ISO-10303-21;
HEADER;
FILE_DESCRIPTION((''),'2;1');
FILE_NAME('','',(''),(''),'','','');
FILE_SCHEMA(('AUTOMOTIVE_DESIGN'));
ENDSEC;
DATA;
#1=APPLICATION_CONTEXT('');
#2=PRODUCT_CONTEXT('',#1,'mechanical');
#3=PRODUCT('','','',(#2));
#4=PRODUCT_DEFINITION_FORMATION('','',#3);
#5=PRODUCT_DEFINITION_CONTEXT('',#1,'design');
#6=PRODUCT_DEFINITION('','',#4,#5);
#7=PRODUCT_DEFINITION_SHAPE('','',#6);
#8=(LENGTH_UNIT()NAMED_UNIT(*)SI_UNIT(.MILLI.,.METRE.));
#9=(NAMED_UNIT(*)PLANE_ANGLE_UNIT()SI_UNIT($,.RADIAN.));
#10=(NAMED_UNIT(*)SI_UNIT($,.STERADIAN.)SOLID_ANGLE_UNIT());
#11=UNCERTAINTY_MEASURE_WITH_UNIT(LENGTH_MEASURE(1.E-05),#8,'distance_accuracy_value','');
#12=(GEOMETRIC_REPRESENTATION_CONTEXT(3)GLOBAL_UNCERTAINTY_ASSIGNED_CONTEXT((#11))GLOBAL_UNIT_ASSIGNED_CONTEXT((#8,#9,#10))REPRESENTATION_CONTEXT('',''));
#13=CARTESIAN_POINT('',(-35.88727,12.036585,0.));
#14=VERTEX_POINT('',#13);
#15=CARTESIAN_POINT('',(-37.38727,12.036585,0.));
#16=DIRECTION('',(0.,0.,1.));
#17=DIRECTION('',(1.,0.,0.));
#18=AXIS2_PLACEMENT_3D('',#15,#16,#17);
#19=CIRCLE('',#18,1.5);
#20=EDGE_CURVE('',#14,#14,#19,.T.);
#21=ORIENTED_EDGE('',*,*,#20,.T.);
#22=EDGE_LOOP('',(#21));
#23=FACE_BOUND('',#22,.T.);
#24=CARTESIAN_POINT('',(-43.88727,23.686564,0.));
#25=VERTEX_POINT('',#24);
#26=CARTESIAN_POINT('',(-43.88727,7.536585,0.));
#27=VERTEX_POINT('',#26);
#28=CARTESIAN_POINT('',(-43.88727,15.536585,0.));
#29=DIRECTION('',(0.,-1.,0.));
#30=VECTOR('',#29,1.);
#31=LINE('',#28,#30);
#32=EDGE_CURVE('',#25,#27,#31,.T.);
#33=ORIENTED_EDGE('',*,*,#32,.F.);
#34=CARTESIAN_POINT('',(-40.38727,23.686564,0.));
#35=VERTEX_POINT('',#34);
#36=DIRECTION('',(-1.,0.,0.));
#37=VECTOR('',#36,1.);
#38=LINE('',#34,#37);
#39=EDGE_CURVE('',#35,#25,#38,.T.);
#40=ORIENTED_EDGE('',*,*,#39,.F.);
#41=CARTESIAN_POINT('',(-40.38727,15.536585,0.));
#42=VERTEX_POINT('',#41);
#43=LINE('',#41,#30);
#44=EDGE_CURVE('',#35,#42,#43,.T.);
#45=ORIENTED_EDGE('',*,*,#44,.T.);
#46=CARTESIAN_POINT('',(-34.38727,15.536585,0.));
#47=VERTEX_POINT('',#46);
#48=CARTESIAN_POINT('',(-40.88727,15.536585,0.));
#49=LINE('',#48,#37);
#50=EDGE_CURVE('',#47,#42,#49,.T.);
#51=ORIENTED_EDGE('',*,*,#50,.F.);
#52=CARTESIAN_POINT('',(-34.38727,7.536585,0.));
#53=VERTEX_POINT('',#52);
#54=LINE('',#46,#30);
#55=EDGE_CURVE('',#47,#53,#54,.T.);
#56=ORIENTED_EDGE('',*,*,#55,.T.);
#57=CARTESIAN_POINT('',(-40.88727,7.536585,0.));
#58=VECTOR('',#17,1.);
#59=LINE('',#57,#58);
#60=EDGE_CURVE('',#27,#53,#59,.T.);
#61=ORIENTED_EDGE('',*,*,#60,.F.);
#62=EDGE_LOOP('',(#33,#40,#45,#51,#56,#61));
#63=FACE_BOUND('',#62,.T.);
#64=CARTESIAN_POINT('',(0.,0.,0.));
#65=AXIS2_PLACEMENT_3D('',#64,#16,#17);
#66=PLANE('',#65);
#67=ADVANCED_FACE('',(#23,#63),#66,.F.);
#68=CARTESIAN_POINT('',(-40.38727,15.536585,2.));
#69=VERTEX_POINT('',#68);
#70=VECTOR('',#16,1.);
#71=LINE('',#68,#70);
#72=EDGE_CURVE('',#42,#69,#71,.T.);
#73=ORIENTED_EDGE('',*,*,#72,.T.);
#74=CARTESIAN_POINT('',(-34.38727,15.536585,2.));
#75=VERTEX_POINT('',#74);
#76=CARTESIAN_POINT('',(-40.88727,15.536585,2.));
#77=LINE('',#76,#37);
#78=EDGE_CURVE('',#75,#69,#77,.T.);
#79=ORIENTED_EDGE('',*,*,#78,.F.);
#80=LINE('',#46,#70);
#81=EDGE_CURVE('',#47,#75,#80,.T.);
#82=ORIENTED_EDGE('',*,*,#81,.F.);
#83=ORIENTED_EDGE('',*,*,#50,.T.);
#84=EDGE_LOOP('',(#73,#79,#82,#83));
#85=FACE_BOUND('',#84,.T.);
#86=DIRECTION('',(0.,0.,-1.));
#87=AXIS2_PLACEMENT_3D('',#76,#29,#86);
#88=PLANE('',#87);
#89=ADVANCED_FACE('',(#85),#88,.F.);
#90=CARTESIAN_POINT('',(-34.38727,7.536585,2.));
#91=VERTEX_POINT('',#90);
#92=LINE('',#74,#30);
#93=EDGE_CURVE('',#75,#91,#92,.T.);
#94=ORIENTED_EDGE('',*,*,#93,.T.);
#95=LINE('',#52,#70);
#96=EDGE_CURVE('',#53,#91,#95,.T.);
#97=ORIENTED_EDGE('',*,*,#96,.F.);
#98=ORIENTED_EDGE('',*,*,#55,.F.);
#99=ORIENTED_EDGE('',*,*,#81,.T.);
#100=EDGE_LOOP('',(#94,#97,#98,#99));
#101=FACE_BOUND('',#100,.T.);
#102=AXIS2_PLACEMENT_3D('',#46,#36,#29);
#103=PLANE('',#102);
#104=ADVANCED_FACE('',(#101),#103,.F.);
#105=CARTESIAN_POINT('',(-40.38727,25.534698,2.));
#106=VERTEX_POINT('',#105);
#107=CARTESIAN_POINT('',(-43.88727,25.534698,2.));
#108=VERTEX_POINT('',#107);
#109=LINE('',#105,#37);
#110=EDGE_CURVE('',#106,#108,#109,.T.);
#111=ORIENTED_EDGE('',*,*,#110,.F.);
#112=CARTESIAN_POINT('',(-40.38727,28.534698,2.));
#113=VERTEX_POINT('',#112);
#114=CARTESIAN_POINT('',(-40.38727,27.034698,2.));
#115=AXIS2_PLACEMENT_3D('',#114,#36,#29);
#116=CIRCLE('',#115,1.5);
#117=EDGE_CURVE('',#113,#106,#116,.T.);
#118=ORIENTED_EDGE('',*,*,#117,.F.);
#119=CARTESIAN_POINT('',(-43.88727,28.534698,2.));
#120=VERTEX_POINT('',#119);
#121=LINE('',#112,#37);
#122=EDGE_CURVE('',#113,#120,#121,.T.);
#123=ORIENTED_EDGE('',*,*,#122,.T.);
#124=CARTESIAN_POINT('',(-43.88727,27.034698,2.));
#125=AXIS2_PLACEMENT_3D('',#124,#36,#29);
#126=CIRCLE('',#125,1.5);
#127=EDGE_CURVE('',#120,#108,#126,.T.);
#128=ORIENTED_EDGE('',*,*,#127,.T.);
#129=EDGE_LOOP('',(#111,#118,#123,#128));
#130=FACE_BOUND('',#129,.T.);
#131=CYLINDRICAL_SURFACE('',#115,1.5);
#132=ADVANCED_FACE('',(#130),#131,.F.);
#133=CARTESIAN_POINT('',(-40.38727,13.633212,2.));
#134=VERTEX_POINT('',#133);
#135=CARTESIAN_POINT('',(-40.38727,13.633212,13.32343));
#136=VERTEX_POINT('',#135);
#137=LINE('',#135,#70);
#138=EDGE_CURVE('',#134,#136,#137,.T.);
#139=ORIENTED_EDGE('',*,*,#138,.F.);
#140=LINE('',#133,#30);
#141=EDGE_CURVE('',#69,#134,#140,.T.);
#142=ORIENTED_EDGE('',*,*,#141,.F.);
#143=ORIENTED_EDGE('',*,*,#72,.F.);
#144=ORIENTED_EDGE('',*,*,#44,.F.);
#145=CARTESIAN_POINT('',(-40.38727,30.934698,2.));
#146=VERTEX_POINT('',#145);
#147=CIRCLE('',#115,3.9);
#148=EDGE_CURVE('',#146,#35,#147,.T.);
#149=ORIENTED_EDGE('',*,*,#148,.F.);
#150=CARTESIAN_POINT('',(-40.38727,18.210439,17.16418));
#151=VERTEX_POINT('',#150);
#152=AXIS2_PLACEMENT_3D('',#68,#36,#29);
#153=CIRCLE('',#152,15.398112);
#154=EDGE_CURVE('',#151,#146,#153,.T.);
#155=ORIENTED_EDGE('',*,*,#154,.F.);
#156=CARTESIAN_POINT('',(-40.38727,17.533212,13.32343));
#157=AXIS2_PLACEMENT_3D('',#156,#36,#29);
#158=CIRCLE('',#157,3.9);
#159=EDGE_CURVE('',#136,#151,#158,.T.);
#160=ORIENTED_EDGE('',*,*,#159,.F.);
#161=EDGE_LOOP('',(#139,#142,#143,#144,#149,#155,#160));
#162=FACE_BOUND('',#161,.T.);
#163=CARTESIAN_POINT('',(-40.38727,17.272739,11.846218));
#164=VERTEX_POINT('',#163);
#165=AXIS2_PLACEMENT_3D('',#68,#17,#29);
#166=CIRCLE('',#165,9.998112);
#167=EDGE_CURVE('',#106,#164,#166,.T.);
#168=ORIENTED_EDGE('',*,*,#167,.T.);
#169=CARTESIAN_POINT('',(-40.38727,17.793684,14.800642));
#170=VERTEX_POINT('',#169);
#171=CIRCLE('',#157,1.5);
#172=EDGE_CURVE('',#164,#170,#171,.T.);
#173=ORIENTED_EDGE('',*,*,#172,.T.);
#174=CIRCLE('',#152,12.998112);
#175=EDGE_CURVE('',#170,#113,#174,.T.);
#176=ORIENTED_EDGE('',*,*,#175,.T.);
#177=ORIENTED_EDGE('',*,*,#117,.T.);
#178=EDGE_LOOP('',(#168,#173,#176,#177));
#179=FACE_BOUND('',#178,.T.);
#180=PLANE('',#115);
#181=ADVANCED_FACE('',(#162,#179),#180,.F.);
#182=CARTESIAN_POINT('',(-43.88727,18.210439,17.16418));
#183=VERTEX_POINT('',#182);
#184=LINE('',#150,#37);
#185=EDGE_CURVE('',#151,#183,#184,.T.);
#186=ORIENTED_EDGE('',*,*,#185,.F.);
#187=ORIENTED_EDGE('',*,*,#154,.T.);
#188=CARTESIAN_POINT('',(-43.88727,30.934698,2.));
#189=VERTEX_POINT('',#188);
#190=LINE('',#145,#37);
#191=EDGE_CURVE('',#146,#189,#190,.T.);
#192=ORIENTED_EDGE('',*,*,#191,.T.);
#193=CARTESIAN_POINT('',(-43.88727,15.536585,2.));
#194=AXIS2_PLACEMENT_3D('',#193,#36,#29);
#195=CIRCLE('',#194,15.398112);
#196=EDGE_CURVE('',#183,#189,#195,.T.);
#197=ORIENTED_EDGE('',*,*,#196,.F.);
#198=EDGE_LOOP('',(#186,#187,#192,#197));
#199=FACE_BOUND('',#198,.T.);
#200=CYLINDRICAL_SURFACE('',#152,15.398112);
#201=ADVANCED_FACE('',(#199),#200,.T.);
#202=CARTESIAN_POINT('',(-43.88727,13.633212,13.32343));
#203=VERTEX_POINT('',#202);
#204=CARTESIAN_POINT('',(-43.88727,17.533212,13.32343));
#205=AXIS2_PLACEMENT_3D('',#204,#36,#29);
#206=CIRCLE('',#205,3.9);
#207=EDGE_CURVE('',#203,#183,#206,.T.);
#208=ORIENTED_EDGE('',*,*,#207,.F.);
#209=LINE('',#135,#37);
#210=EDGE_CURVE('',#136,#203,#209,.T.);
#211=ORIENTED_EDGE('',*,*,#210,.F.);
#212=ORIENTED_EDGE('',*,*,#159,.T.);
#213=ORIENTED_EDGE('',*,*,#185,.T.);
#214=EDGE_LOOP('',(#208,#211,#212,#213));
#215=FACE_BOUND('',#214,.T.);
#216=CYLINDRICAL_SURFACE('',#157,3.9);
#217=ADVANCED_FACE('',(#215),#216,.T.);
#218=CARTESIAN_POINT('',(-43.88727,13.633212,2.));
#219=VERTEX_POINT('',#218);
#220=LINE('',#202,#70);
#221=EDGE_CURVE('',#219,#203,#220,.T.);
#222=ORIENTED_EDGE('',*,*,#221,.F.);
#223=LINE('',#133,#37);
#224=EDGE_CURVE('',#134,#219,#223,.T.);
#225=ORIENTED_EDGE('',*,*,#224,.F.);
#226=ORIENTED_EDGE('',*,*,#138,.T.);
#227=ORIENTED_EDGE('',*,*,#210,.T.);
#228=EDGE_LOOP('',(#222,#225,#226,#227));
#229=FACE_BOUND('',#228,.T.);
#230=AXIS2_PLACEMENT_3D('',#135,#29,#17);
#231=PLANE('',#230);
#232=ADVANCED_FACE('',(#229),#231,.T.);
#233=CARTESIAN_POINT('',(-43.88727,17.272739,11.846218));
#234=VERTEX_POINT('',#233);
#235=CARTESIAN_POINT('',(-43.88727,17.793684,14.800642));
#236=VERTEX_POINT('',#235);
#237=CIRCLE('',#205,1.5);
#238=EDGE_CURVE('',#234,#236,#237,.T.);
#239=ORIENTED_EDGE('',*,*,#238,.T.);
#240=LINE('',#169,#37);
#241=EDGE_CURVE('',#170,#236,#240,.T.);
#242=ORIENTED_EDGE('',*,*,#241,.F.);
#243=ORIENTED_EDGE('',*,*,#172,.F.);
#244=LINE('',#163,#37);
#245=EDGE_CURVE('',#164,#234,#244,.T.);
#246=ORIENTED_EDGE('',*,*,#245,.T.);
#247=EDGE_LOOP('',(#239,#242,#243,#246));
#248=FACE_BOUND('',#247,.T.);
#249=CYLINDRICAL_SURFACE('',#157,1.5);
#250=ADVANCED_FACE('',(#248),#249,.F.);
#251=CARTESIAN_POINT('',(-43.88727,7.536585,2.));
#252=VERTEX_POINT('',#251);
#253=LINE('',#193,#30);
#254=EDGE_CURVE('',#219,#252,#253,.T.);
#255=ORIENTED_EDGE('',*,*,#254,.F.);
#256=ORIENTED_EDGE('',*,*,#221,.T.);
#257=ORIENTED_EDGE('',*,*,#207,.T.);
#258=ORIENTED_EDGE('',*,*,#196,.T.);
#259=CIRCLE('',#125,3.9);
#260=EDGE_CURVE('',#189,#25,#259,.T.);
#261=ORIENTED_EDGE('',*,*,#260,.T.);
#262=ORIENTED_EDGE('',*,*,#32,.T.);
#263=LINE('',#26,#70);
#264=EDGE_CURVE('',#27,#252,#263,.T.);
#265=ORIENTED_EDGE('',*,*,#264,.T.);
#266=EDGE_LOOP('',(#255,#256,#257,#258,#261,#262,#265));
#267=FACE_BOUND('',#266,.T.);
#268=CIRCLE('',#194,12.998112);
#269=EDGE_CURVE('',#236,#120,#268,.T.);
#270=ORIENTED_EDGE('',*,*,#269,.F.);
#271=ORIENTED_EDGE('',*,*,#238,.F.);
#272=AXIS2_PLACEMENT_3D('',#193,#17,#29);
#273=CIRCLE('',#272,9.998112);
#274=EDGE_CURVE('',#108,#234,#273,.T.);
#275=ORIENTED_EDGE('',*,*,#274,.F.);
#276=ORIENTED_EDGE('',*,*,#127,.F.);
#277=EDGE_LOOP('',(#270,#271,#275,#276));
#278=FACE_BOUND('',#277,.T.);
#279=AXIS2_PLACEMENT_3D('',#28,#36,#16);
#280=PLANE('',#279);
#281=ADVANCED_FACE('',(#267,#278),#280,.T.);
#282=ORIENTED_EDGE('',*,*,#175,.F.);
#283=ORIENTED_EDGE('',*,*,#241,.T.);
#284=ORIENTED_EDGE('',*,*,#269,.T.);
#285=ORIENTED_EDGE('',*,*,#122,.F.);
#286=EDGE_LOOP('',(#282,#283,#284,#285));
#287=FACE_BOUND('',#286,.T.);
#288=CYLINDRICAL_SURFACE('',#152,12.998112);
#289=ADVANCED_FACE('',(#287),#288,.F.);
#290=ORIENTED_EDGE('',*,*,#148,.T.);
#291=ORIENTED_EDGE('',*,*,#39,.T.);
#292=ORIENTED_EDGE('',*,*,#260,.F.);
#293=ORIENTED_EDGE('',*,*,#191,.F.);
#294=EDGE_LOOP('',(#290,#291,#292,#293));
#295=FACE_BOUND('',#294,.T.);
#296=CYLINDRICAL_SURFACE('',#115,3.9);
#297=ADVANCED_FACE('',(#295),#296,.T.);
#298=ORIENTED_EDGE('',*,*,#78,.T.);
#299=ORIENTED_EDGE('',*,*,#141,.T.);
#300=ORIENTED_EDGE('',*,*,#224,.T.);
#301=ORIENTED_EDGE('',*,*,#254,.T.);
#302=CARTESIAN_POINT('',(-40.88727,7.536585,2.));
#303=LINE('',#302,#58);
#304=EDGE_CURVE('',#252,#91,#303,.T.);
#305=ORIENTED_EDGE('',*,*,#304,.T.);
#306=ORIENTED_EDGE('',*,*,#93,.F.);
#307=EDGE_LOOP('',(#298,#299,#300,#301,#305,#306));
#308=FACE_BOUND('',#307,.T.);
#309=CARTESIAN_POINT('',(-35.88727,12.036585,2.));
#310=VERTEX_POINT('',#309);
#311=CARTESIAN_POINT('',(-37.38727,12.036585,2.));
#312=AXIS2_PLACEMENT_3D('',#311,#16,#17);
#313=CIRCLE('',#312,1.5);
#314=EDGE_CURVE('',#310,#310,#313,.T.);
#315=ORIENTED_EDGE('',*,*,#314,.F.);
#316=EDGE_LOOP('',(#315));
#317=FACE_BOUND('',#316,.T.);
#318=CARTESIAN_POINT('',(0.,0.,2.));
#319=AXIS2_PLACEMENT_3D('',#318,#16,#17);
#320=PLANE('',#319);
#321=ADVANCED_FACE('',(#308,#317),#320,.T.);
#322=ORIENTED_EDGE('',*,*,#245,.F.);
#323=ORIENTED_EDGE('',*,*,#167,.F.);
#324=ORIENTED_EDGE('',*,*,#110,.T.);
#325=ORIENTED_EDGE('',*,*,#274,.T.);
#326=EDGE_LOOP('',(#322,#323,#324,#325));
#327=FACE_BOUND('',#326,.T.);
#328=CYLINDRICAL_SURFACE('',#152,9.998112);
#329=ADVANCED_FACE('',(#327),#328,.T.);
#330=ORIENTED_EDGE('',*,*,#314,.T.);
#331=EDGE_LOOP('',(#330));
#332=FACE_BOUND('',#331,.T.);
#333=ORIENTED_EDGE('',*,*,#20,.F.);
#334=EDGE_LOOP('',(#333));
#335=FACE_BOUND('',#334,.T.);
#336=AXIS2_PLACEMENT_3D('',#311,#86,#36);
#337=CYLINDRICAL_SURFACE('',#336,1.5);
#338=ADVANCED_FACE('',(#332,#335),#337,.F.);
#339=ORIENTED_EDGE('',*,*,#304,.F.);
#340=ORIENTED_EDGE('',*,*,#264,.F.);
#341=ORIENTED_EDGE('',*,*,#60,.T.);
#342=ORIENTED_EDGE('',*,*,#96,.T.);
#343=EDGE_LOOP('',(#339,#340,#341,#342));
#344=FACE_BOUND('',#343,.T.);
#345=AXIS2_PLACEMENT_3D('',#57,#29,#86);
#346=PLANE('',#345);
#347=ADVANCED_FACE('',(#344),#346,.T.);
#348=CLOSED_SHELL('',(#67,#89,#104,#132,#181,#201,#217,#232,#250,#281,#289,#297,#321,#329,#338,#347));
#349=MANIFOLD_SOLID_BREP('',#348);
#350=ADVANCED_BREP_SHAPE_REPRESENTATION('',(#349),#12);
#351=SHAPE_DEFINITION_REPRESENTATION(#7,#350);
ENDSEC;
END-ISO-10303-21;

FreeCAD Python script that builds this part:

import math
import FreeCAD as App
import Part
import Sketcher

V = App.Vector

doc = App.newDocument("Part")
body = doc.addObject("PartDesign::Body", "Body")

sketch1 = doc.addObject("Sketcher::SketchObject", "Sketch")
body.addObject(sketch1)
sketch1.AttachmentSupport = (doc.XY_Plane, [""])
sketch1.MapMode = "FlatFace"
sketch1.addGeometry(Part.LineSegment(V(-40.9, 15.5, 0), V(-40.9, -12.5, 0)), False)
sketch1.addGeometry(Part.LineSegment(V(-40.9, -12.5, 0), V(-14.9, -12.5, 0)), False)
sketch1.addGeometry(Part.LineSegment(V(-14.9, -12.5, 0), V(-14.9, 15.5, 0)), False)
sketch1.addGeometry(Part.LineSegment(V(-14.9, 15.5, 0), V(-40.9, 15.5, 0)), False)
sketch1.addGeometry(Part.Circle(V(-27.9, -5.5, 0), V(0, 0, 1), 1.5), False)
sketch1.addGeometry(Part.Circle(V(-37.4, 12, 0), V(0, 0, 1), 1.5), False)
sketch1.addGeometry(Part.Circle(V(-18.4, 12, 0), V(0, 0, 1), 1.5), False)
sketch1.addConstraint(Sketcher.Constraint("Coincident", 0, 2, 1, 1))
sketch1.addConstraint(Sketcher.Constraint("Coincident", 1, 2, 2, 1))
sketch1.addConstraint(Sketcher.Constraint("Coincident", 2, 2, 3, 1))
sketch1.addConstraint(Sketcher.Constraint("Coincident", 3, 2, 0, 1))
sketch1.addConstraint(Sketcher.Constraint("Vertical", 0))
sketch1.addConstraint(Sketcher.Constraint("Horizontal", 1))
sketch1.addConstraint(Sketcher.Constraint("Vertical", 2))
sketch1.addConstraint(Sketcher.Constraint("Horizontal", 3))
sketch1.addConstraint(Sketcher.Constraint("Equal", 4, 5))
sketch1.addConstraint(Sketcher.Constraint("Equal", 5, 6))
sketch1.addConstraint(Sketcher.Constraint("Horizontal", 5, 3, 6, 3))
sketch1.addConstraint(Sketcher.Constraint("Diameter", 4, 3.0))
sketch1.addConstraint(Sketcher.Constraint("DistanceX", 1, 1, 1, 2, 26.0))
sketch1.addConstraint(Sketcher.Constraint("DistanceY", 0, 2, 0, 1, 28.0))
sketch1.addConstraint(Sketcher.Constraint("DistanceX", 5, 3, 6, 3, 19.0))
sketch1.addConstraint(Sketcher.Constraint("DistanceX", 0, 2, 4, 3, 13.0))
sketch1.addConstraint(Sketcher.Constraint("DistanceY", 0, 2, 4, 3, 7.0))
sketch1.addConstraint(Sketcher.Constraint("DistanceX", 5, 3, 4, 3, 9.5))
sketch1.addConstraint(Sketcher.Constraint("DistanceY", 4, 3, 5, 3, 17.5))
sketch1.addConstraint(Sketcher.Constraint("DistanceX", 4, 3, -1, 1, 27.88727))
sketch1.addConstraint(Sketcher.Constraint("DistanceY", 4, 3, -1, 1, 5.463415))
pad1 = doc.addObject("PartDesign::Pad", "Pad")
body.addObject(pad1)
pad1.Profile = sketch1
pad1.Length = 2

sketch2 = doc.addObject("Sketcher::SketchObject", "Sketch001")
body.addObject(sketch2)
sketch2.AttachmentSupport = (doc.XY_Plane, [""])
sketch2.MapMode = "FlatFace"
sketch2.AttachmentOffset = App.Placement(V(0, 0, 2), App.Rotation())
sketch2.addGeometry(Part.LineSegment(V(-43.9, 15.5, 0), V(-43.9, 7.5, 0)), False)
sketch2.addGeometry(Part.LineSegment(V(-43.9, 7.5, 0), V(-40.9, 7.5, 0)), False)
sketch2.addGeometry(Part.LineSegment(V(-40.9, 7.5, 0), V(-40.9, 15.5, 0)), False)
sketch2.addGeometry(Part.LineSegment(V(-40.9, 15.5, 0), V(-43.9, 15.5, 0)), False)
sketch2.addConstraint(Sketcher.Constraint("Coincident", 0, 2, 1, 1))
sketch2.addConstraint(Sketcher.Constraint("Coincident", 1, 2, 2, 1))
sketch2.addConstraint(Sketcher.Constraint("Coincident", 2, 2, 3, 1))
sketch2.addConstraint(Sketcher.Constraint("Coincident", 3, 2, 0, 1))
sketch2.addConstraint(Sketcher.Constraint("Vertical", 0))
sketch2.addConstraint(Sketcher.Constraint("Horizontal", 1))
sketch2.addConstraint(Sketcher.Constraint("Vertical", 2))
sketch2.addConstraint(Sketcher.Constraint("Horizontal", 3))
sketch2.addConstraint(Sketcher.Constraint("DistanceX", 1, 1, 1, 2, 3.0))
sketch2.addConstraint(Sketcher.Constraint("DistanceY", 0, 2, 0, 1, 8.0))
sketch2.addConstraint(Sketcher.Constraint("DistanceX", 0, 2, -1, 1, 43.88727))
sketch2.addConstraint(Sketcher.Constraint("DistanceY", -1, 1, 0, 2, 7.536585))
pad2 = doc.addObject("PartDesign::Pad", "Pad001")
body.addObject(pad2)
pad2.Profile = sketch2
pad2.Length = 2
pad2.Reversed = True

sketch3 = doc.addObject("Sketcher::SketchObject", "Sketch002")
body.addObject(sketch3)
sketch3.AttachmentSupport = (doc.YZ_Plane, [""])
sketch3.MapMode = "FlatFace"
sketch3.AttachmentOffset = App.Placement(V(0, 0, -40.88727), App.Rotation())
sketch3.addGeometry(Part.LineSegment(V(23.7, 0, 0), V(15.5, 0, 0)), False)
sketch3.addGeometry(Part.LineSegment(V(15.5, 0, 0), V(15.5, 2, 0)), False)
sketch3.addGeometry(Part.LineSegment(V(15.5, 2, 0), V(13.6, 2, 0)), False)
sketch3.addGeometry(Part.LineSegment(V(13.6, 2, 0), V(13.6, 13.3, 0)), False)
sketch3.addGeometry(Part.ArcOfCircle(Part.Circle(V(17.5, 13.3, 0), V(0, 0, 1), 3.9), math.radians(80), math.radians(180)), False)
sketch3.addGeometry(Part.ArcOfCircle(Part.Circle(V(15.5, 2, 0), V(0, 0, 1), 15.4), math.radians(0), math.radians(80)), False)
sketch3.addGeometry(Part.ArcOfCircle(Part.Circle(V(27, 2, 0), V(0, 0, 1), 3.9), math.radians(-149), math.radians(0)), False)
sketch3.addGeometry(Part.ArcOfCircle(Part.Circle(V(17.5, 13.3, 0), V(0, 0, 1), 1.5), math.radians(80), math.radians(260)), False)
sketch3.addGeometry(Part.ArcOfCircle(Part.Circle(V(15.5, 2, 0), V(0, 0, 1), 10), math.radians(0), math.radians(80)), False)
sketch3.addGeometry(Part.ArcOfCircle(Part.Circle(V(27, 2, 0), V(0, 0, 1), 1.5), math.radians(180), math.radians(360)), False)
sketch3.addGeometry(Part.ArcOfCircle(Part.Circle(V(15.5, 2, 0), V(0, 0, 1), 13), math.radians(0), math.radians(80)), False)
sketch3.addConstraint(Sketcher.Constraint("Coincident", 0, 2, 1, 1))
sketch3.addConstraint(Sketcher.Constraint("Coincident", 1, 2, 2, 1))
sketch3.addConstraint(Sketcher.Constraint("Coincident", 2, 2, 3, 1))
sketch3.addConstraint(Sketcher.Constraint("Tangent", 3, 2, 4, 2))
sketch3.addConstraint(Sketcher.Constraint("Tangent", 4, 1, 5, 2))
sketch3.addConstraint(Sketcher.Constraint("Tangent", 5, 1, 6, 2))
sketch3.addConstraint(Sketcher.Constraint("Coincident", 6, 1, 0, 1))
sketch3.addConstraint(Sketcher.Constraint("Tangent", 7, 2, 8, 2))
sketch3.addConstraint(Sketcher.Constraint("Tangent", 8, 1, 9, 1))
sketch3.addConstraint(Sketcher.Constraint("Tangent", 9, 2, 10, 1))
sketch3.addConstraint(Sketcher.Constraint("Tangent", 10, 2, 7, 1))
sketch3.addConstraint(Sketcher.Constraint("Horizontal", 0))
sketch3.addConstraint(Sketcher.Constraint("Vertical", 1))
sketch3.addConstraint(Sketcher.Constraint("Horizontal", 2))
sketch3.addConstraint(Sketcher.Constraint("Vertical", 3))
sketch3.addConstraint(Sketcher.Constraint("Coincident", 7, 3, 4, 3))
sketch3.addConstraint(Sketcher.Constraint("Coincident", 8, 3, 5, 3))
sketch3.addConstraint(Sketcher.Constraint("Coincident", 9, 3, 6, 3))
sketch3.addConstraint(Sketcher.Constraint("Coincident", 10, 3, 5, 3))
sketch3.addConstraint(Sketcher.Constraint("Coincident", 1, 2, 5, 3))
sketch3.addConstraint(Sketcher.Constraint("PointOnObject", 0, 2, -1))
sketch3.addConstraint(Sketcher.Constraint("Horizontal", 5, 3, 6, 3))
sketch3.addConstraint(Sketcher.Constraint("Radius", 4, 3.9))
sketch3.addConstraint(Sketcher.Constraint("Radius", 7, 1.5))
sketch3.addConstraint(Sketcher.Constraint("DistanceY", 1, 1, 1, 2, 2.0))
sketch3.addConstraint(Sketcher.Constraint("Radius", 5, 15.398112))
sketch3.addConstraint(Sketcher.Constraint("DistanceY", 3, 1, 3, 2, 11.32343))
sketch3.addConstraint(Sketcher.Constraint("DistanceX", -1, 1, 4, 3, 17.533212))
pad3 = doc.addObject("PartDesign::Pad", "Pad002")
body.addObject(pad3)
pad3.Profile = sketch3
pad3.Type = "TwoLengths"
pad3.Length = 3
pad3.Length2 = 0.5
pad3.Reversed = True

sketch4 = doc.addObject("Sketcher::SketchObject", "Sketch003")
body.addObject(sketch4)
sketch4.AttachmentSupport = (doc.XY_Plane, [""])
sketch4.MapMode = "FlatFace"
sketch4.AttachmentOffset = App.Placement(V(0, 0, 2), App.Rotation())
sketch4.addGeometry(Part.LineSegment(V(-34, 16, 0), V(-34, 8, 0)), False)
sketch4.addGeometry(Part.LineSegment(V(-34, 8, 0), V(-41, 8, 0)), False)
sketch4.addGeometry(Part.LineSegment(V(-41, 8, 0), V(-41, -12, 0)), False)
sketch4.addGeometry(Part.LineSegment(V(-41, -12, 0), V(-15, -12, 0)), False)
sketch4.addGeometry(Part.LineSegment(V(-15, -12, 0), V(-15, 16, 0)), False)
sketch4.addGeometry(Part.LineSegment(V(-15, 16, 0), V(-34, 16, 0)), False)
sketch4.addConstraint(Sketcher.Constraint("Coincident", 0, 2, 1, 1))
sketch4.addConstraint(Sketcher.Constraint("Coincident", 1, 2, 2, 1))
sketch4.addConstraint(Sketcher.Constraint("Coincident", 2, 2, 3, 1))
sketch4.addConstraint(Sketcher.Constraint("Coincident", 3, 2, 4, 1))
sketch4.addConstraint(Sketcher.Constraint("Coincident", 4, 2, 5, 1))
sketch4.addConstraint(Sketcher.Constraint("Coincident", 5, 2, 0, 1))
sketch4.addConstraint(Sketcher.Constraint("Vertical", 0))
sketch4.addConstraint(Sketcher.Constraint("Horizontal", 1))
sketch4.addConstraint(Sketcher.Constraint("Vertical", 2))
sketch4.addConstraint(Sketcher.Constraint("Horizontal", 3))
sketch4.addConstraint(Sketcher.Constraint("Vertical", 4))
sketch4.addConstraint(Sketcher.Constraint("Horizontal", 5))
sketch4.addConstraint(Sketcher.Constraint("DistanceX", 3, 1, 3, 2, 26.0))
sketch4.addConstraint(Sketcher.Constraint("DistanceY", 0, 2, 0, 1, 8.0))
sketch4.addConstraint(Sketcher.Constraint("DistanceY", 2, 2, 2, 1, 20.0))
sketch4.addConstraint(Sketcher.Constraint("DistanceX", 1, 2, 1, 1, 6.5))
sketch4.addConstraint(Sketcher.Constraint("DistanceX", 0, 2, -1, 1, 34.38727))
sketch4.addConstraint(Sketcher.Constraint("DistanceY", -1, 1, 0, 2, 7.536585))
pocket1 = doc.addObject("PartDesign::Pocket", "Pocket")
body.addObject(pocket1)
pocket1.Profile = sketch4
pocket1.Length = 2

doc.recompute()
